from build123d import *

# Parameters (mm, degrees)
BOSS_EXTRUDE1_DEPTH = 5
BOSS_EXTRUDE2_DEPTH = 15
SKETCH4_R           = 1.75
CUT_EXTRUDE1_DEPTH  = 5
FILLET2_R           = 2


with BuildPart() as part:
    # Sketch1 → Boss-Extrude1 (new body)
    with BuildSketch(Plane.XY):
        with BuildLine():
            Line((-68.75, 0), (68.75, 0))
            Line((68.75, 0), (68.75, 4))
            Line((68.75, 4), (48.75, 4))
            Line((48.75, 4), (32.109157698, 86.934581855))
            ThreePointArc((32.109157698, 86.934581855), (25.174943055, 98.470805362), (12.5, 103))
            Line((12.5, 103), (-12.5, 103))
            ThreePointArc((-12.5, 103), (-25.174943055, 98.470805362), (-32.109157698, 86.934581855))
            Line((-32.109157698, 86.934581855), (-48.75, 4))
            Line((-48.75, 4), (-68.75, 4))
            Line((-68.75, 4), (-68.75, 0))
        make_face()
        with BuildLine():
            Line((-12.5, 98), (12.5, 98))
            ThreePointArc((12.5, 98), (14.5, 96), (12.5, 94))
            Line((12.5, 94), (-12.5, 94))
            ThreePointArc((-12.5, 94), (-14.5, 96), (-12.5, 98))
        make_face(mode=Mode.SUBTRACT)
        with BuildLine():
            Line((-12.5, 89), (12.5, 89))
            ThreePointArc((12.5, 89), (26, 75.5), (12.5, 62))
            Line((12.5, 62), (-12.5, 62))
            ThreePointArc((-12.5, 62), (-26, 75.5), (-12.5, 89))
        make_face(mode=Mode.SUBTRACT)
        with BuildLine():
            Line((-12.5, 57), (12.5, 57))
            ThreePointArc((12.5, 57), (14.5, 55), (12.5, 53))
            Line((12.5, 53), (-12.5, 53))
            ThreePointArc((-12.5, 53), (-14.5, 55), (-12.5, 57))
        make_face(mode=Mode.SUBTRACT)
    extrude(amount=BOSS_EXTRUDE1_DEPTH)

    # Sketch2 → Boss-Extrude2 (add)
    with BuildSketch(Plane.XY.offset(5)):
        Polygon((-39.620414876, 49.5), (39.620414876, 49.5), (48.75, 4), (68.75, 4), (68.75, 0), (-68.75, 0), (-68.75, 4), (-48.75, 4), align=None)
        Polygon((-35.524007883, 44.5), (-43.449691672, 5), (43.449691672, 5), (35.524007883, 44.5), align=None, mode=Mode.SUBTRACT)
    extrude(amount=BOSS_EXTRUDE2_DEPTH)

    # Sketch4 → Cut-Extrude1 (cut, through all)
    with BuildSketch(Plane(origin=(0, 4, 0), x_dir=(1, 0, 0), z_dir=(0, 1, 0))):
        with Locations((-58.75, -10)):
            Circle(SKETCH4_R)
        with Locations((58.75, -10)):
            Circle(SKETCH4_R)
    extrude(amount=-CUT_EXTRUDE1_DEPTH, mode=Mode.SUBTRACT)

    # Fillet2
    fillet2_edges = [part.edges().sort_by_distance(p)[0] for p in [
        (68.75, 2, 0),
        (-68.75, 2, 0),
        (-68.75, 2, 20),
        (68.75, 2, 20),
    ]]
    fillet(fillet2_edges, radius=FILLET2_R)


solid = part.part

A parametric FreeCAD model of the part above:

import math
import FreeCAD as App
import Part
import Sketcher
Q = App.Units.Quantity


def edges_at(feature, points):
    """Names of the edges that pass closest to the given points."""
    edges = feature.Shape.Edges
    near = lambda p: min(range(len(edges)), key=lambda i: edges[i].distToShape(Part.Vertex(*p))[0])
    return sorted({f"Edge{near(p) + 1}" for p in points})

doc = App.newDocument("Part")
body = doc.addObject("PartDesign::Body", "Body")

# Sketch on XY plane
sketch1 = doc.addObject("Sketcher::SketchObject", "Sketch")
body.addObject(sketch1)
sketch1.AttachmentSupport = (doc.XY_Plane, [""])
sketch1.MapMode = "FlatFace"
sketch1.addGeometry(Part.LineSegment(App.Vector(-68.8, 0, 0), App.Vector(68.8, 0, 0)), False)
sketch1.addGeometry(Part.LineSegment(App.Vector(68.8, 0, 0), App.Vector(68.8, 4, 0)), False)
sketch1.addGeometry(Part.LineSegment(App.Vector(68.8, 4, 0), App.Vector(48.8, 4, 0)), False)
sketch1.addGeometry(Part.LineSegment(App.Vector(48.8, 4, 0), App.Vector(32.1, 86.9, 0)), False)
sketch1.addGeometry(Part.ArcOfCircle(Part.Circle(App.Vector(12.5, 83, 0), App.Vector(0, 0, 1), 20), math.radians(11), math.radians(90)), False)
sketch1.addGeometry(Part.LineSegment(App.Vector(12.5, 103, 0), App.Vector(-12.5, 103, 0)), False)
sketch1.addGeometry(Part.ArcOfCircle(Part.Circle(App.Vector(-12.5, 83, 0), App.Vector(0, 0, 1), 20), math.radians(90), math.radians(169)), False)
sketch1.addGeometry(Part.LineSegment(App.Vector(-32.1, 86.9, 0), App.Vector(-48.8, 4, 0)), False)
sketch1.addGeometry(Part.LineSegment(App.Vector(-48.8, 4, 0), App.Vector(-68.8, 4, 0)), False)
sketch1.addGeometry(Part.LineSegment(App.Vector(-68.8, 4, 0), App.Vector(-68.8, 0, 0)), False)
sketch1.addGeometry(Part.ArcOfCircle(Part.Circle(App.Vector(-12.5, 55, 0), App.Vector(0, 0, 1), 2), math.radians(90), math.radians(270)), False)
sketch1.addGeometry(Part.LineSegment(App.Vector(-12.5, 57, 0), App.Vector(12.5, 57, 0)), False)
sketch1.addGeometry(Part.ArcOfCircle(Part.Circle(App.Vector(12.5, 55, 0), App.Vector(0, 0, 1), 2), math.radians(-90), math.radians(90)), False)
sketch1.addGeometry(Part.LineSegment(App.Vector(12.5, 53, 0), App.Vector(-12.5, 53, 0)), False)
sketch1.addGeometry(Part.ArcOfCircle(Part.Circle(App.Vector(-12.5, 75.5, 0), App.Vector(0, 0, 1), 13.5), math.radians(90), math.radians(270)), False)
sketch1.addGeometry(Part.LineSegment(App.Vector(-12.5, 89, 0), App.Vector(12.5, 89, 0)), False)
sketch1.addGeometry(Part.ArcOfCircle(Part.Circle(App.Vector(12.5, 75.5, 0), App.Vector(0, 0, 1), 13.5), math.radians(-90), math.radians(90)), False)
sketch1.addGeometry(Part.LineSegment(App.Vector(12.5, 62, 0), App.Vector(-12.5, 62, 0)), False)
sketch1.addGeometry(Part.ArcOfCircle(Part.Circle(App.Vector(-12.5, 96, 0), App.Vector(0, 0, 1), 2), math.radians(90), math.radians(270)), False)
sketch1.addGeometry(Part.LineSegment(App.Vector(-12.5, 98, 0), App.Vector(12.5, 98, 0)), False)
sketch1.addGeometry(Part.ArcOfCircle(Part.Circle(App.Vector(12.5, 96, 0), App.Vector(0, 0, 1), 2), math.radians(-90), math.radians(90)), False)
sketch1.addGeometry(Part.LineSegment(App.Vector(12.5, 94, 0), App.Vector(-12.5, 94, 0)), False)
sketch1.addConstraint(Sketcher.Constraint("Coincident", 0, 2, 1, 1))
sketch1.addConstraint(Sketcher.Constraint("Coincident", 1, 2, 2, 1))
sketch1.addConstraint(Sketcher.Constraint("Coincident", 2, 2, 3, 1))
sketch1.addConstraint(Sketcher.Constraint("Tangent", 3, 2, 4, 1))
sketch1.addConstraint(Sketcher.Constraint("Tangent", 4, 2, 5, 1))
sketch1.addConstraint(Sketcher.Constraint("Tangent", 5, 2, 6, 1))
sketch1.addConstraint(Sketcher.Constraint("Tangent", 6, 2, 7, 1))
sketch1.addConstraint(Sketcher.Constraint("Coincident", 7, 2, 8, 1))
sketch1.addConstraint(Sketcher.Constraint("Coincident", 8, 2, 9, 1))
sketch1.addConstraint(Sketcher.Constraint("Coincident", 9, 2, 0, 1))
sketch1.addConstraint(Sketcher.Constraint("Tangent", 10, 1, 11, 1))
sketch1.addConstraint(Sketcher.Constraint("Tangent", 11, 2, 12, 2))
sketch1.addConstraint(Sketcher.Constraint("Tangent", 12, 1, 13, 1))
sketch1.addConstraint(Sketcher.Constraint("Tangent", 13, 2, 10, 2))
sketch1.addConstraint(Sketcher.Constraint("Tangent", 14, 1, 15, 1))
sketch1.addConstraint(Sketcher.Constraint("Tangent", 15, 2, 16, 2))
sketch1.addConstraint(Sketcher.Constraint("Tangent", 16, 1, 17, 1))
sketch1.addConstraint(Sketcher.Constraint("Tangent", 17, 2, 14, 2))
sketch1.addConstraint(Sketcher.Constraint("Tangent", 18, 1, 19, 1))
sketch1.addConstraint(Sketcher.Constraint("Tangent", 19, 2, 20, 2))
sketch1.addConstraint(Sketcher.Constraint("Tangent", 20, 1, 21, 1))
sketch1.addConstraint(Sketcher.Constraint("Tangent", 21, 2, 18, 2))
sketch1.addConstraint(Sketcher.Constraint("Horizontal", 0))
sketch1.addConstraint(Sketcher.Constraint("Vertical", 1))
sketch1.addConstraint(Sketcher.Constraint("Horizontal", 2))
sketch1.addConstraint(Sketcher.Constraint("Horizontal", 5))
sketch1.addConstraint(Sketcher.Constraint("Horizontal", 8))
sketch1.addConstraint(Sketcher.Constraint("Vertical", 9))
sketch1.addConstraint(Sketcher.Constraint("Horizontal", 11))
sketch1.addConstraint(Sketcher.Constraint("Horizontal", 13))
sketch1.addConstraint(Sketcher.Constraint("Horizontal", 15))
sketch1.addConstraint(Sketcher.Constraint("Horizontal", 17))
sketch1.addConstraint(Sketcher.Constraint("Horizontal", 19))
sketch1.addConstraint(Sketcher.Constraint("Horizontal", 21))
sketch1.addConstraint(Sketcher.Constraint("Equal", 4, 6))
sketch1.addConstraint(Sketcher.Constraint("Equal", 12, 18))
sketch1.addConstraint(Sketcher.Constraint("Symmetric", 0, 2, 9, 2, -1, 1))
sketch1.addConstraint(Sketcher.Constraint("Symmetric", 3, 2, 6, 2, -2))
sketch1.addConstraint(Sketcher.Constraint("Horizontal", 2, 2, 7, 2))
sketch1.addConstraint(Sketcher.Constraint("Vertical", 6, 3, 10, 3))
sketch1.addConstraint(Sketcher.Constraint("Vertical", 4, 3, 12, 3))
sketch1.addConstraint(Sketcher.Constraint("Vertical", 10, 3, 14, 3))
sketch1.addConstraint(Sketcher.Constraint("Vertical", 12, 3, 16, 3))
sketch1.addConstraint(Sketcher.Constraint("Vertical", 14, 3, 18, 3))
sketch1.addConstraint(Sketcher.Constraint("Vertical", 16, 3, 20, 3))
sketch1.addConstraint(Sketcher.Constraint("Radius", 4, Q("20 mm")))
sketch1.addConstraint(Sketcher.Constraint("Radius", 10, Q("2 mm")))
sketch1.addConstraint(Sketcher.Constraint("Radius", 14, Q("13.5 mm")))
sketch1.addConstraint(Sketcher.Constraint("DistanceX", 2, 2, 2, 1, Q("20 mm")))
sketch1.addConstraint(Sketcher.Constraint("DistanceX", 5, 2, 5, 1, Q("25 mm")))
sketch1.addConstraint(Sketcher.Constraint("DistanceY", 1, 1, 1, 2, Q("4 mm")))
sketch1.addConstraint(Sketcher.Constraint("DistanceX", 0, 1, 0, 2, Q("137.5 mm")))
sketch1.addConstraint(Sketcher.Constraint("DistanceY", -1, 1, 4, 3, Q("83 mm")))
sketch1.addConstraint(Sketcher.Constraint("DistanceY", -1, 1, 10, 3, Q("55 mm")))
sketch1.addConstraint(Sketcher.Constraint("DistanceY", -1, 1, 18, 3, Q("96 mm")))
sketch1.addConstraint(Sketcher.Constraint("DistanceY", -1, 1, 14, 1, Q("89 mm")))
pad1 = doc.addObject("PartDesign::Pad", "Pad")
body.addObject(pad1)
pad1.Profile = sketch1
pad1.Length = 5

# Sketch on XY plane
sketch2 = doc.addObject("Sketcher::SketchObject", "Sketch001")
body.addObject(sketch2)
sketch2.AttachmentSupport = (doc.XY_Plane, [""])
sketch2.MapMode = "FlatFace"
sketch2.AttachmentOffset = App.Placement(App.Vector(0, 0, 5), App.Rotation())
sketch2.addGeometry(Part.LineSegment(App.Vector(39.6, 49.5, 0), App.Vector(-39.6, 49.5, 0)), False)
sketch2.addGeometry(Part.LineSegment(App.Vector(-39.6, 49.5, 0), App.Vector(-48.8, 4, 0)), False)
sketch2.addGeometry(Part.LineSegment(App.Vector(-48.8, 4, 0), App.Vector(-68.8, 4, 0)), False)
sketch2.addGeometry(Part.LineSegment(App.Vector(-68.8, 4, 0), App.Vector(-68.8, 0, 0)), False)
sketch2.addGeometry(Part.LineSegment(App.Vector(-68.8, 0, 0), App.Vector(68.8, 0, 0)), False)
sketch2.addGeometry(Part.LineSegment(App.Vector(68.8, 0, 0), App.Vector(68.8, 4, 0)), False)
sketch2.addGeometry(Part.LineSegment(App.Vector(68.8, 4, 0), App.Vector(48.8, 4, 0)), False)
sketch2.addGeometry(Part.LineSegment(App.Vector(48.8, 4, 0), App.Vector(39.6, 49.5, 0)), False)
sketch2.addGeometry(Part.LineSegment(App.Vector(-35.5, 44.5, 0), App.Vector(35.5, 44.5, 0)), False)
sketch2.addGeometry(Part.LineSegment(App.Vector(35.5, 44.5, 0), App.Vector(43.4, 5, 0)), False)
sketch2.addGeometry(Part.LineSegment(App.Vector(43.4, 5, 0), App.Vector(-43.4, 5, 0)), False)
sketch2.addGeometry(Part.LineSegment(App.Vector(-43.4, 5, 0), App.Vector(-35.5, 44.5, 0)), False)
sketch2.addConstraint(Sketcher.Constraint("Coincident", 0, 2, 1, 1))
sketch2.addConstraint(Sketcher.Constraint("Coincident", 1, 2, 2, 1))
sketch2.addConstraint(Sketcher.Constraint("Coincident", 2, 2, 3, 1))
sketch2.addConstraint(Sketcher.Constraint("Coincident", 3, 2, 4, 1))
sketch2.addConstraint(Sketcher.Constraint("Coincident", 4, 2, 5, 1))
sketch2.addConstraint(Sketcher.Constraint("Coincident", 5, 2, 6, 1))
sketch2.addConstraint(Sketcher.Constraint("Coincident", 6, 2, 7, 1))
sketch2.addConstraint(Sketcher.Constraint("Coincident", 7, 2, 0, 1))
sketch2.addConstraint(Sketcher.Constraint("Coincident", 8, 2, 9, 1))
sketch2.addConstraint(Sketcher.Constraint("Coincident", 9, 2, 10, 1))
sketch2.addConstraint(Sketcher.Constraint("Coincident", 10, 2, 11, 1))
sketch2.addConstraint(Sketcher.Constraint("Coincident", 11, 2, 8, 1))
sketch2.addConstraint(Sketcher.Constraint("Horizontal", 0))
sketch2.addConstraint(Sketcher.Constraint("Horizontal", 2))
sketch2.addConstraint(Sketcher.Constraint("Vertical", 3))
sketch2.addConstraint(Sketcher.Constraint("Horizontal", 4))
sketch2.addConstraint(Sketcher.Constraint("Vertical", 5))
sketch2.addConstraint(Sketcher.Constraint("Horizontal", 6))
sketch2.addConstraint(Sketcher.Constraint("Horizontal", 8))
sketch2.addConstraint(Sketcher.Constraint("Horizontal", 10))
sketch2.addConstraint(Sketcher.Constraint("Symmetric", 3, 2, 4, 2, -1, 1))
sketch2.addConstraint(Sketcher.Constraint("Symmetric", 1, 2, 6, 2, -2))
sketch2.addConstraint(Sketcher.Constraint("Parallel", 7, 9))
sketch2.addConstraint(Sketcher.Constraint("Parallel", 1, 11))
sketch2.addConstraint(Sketcher.Constraint("Equal", 1, 7))
sketch2.addConstraint(Sketcher.Constraint("DistanceX", 2, 2, 2, 1, Q("20 mm")))
sketch2.addConstraint(Sketcher.Constraint("DistanceY", 3, 2, 3, 1, Q("4 mm")))
sketch2.addConstraint(Sketcher.Constraint("DistanceX", 4, 1, 4, 2, Q("137.5 mm")))
sketch2.addConstraint(Sketcher.Constraint("DistanceY", -1, 1, 9, 2, Q("5 mm")))
sketch2.addConstraint(Sketcher.Constraint("DistanceY", 8, 2, 7, 2, Q("5 mm")))
sketch2.addConstraint(Sketcher.Constraint("DistanceY", -1, 1, 0, 2, Q("49.5 mm")))
sketch2.addConstraint(Sketcher.Constraint("Distance", 9, Q("40.287299 mm")))
sketch2.addConstraint(Sketcher.Constraint("DistanceX", 8, 1, 8, 2, Q("71.048016 mm")))
sketch2.addConstraint(Sketcher.Constraint("DistanceX", -1, 1, 9, 2, Q("43.449692 mm")))
pad2 = doc.addObject("PartDesign::Pad", "Pad001")
body.addObject(pad2)
pad2.Profile = sketch2
pad2.Length = 15

# Sketch on XZ plane
sketch3 = doc.addObject("Sketcher::SketchObject", "Sketch002")
body.addObject(sketch3)
sketch3.AttachmentSupport = (doc.XZ_Plane, [""])
sketch3.MapMode = "FlatFace"
sketch3.AttachmentOffset = App.Placement(App.Vector(0, 0, -4), App.Rotation())
sketch3.addGeometry(Part.Circle(App.Vector(-58.8, 10, 0), App.Vector(0, 0, 1), 1.8), False)
sketch3.addGeometry(Part.Circle(App.Vector(58.8, 10, 0), App.Vector(0, 0, 1), 1.8), False)
sketch3.addConstraint(Sketcher.Constraint("Equal", 0, 1))
sketch3.addConstraint(Sketcher.Constraint("Symmetric", 0, 3, 1, 3, -2))
sketch3.addConstraint(Sketcher.Constraint("Diameter", 0, Q("3.5 mm")))
sketch3.addConstraint(Sketcher.Constraint("DistanceY", -1, 1, 0, 3, Q("10 mm")))
sketch3.addConstraint(Sketcher.Constraint("DistanceX", 0, 3, 1, 3, Q("117.5 mm")))
pocket1 = doc.addObject("PartDesign::Pocket", "Pocket")
body.addObject(pocket1)
pocket1.Profile = sketch3
pocket1.Type = "ThroughAll"
pocket1.Reversed = True
doc.recompute()

fillet = doc.addObject("PartDesign::Fillet", "Fillet")
body.addObject(fillet)
fillet.Base = (pocket1, edges_at(pocket1, [
    (68.75, 2, 0),
    (-68.75, 2, 0),
    (-68.75, 2, 20),
    (68.75, 2, 20),
]))
fillet.Radius = 2

doc.recompute()
